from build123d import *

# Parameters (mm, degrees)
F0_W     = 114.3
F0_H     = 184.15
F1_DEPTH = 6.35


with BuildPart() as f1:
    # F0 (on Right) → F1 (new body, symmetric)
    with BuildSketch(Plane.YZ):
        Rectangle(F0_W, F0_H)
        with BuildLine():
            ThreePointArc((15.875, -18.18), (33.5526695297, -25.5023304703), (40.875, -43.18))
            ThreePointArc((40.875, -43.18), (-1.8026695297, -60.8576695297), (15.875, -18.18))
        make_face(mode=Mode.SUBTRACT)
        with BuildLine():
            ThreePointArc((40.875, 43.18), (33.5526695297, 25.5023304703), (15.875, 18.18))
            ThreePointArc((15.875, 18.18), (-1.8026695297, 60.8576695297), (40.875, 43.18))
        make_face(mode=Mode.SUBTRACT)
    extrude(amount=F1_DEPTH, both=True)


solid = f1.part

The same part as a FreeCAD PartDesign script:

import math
import FreeCAD as App
import Part
import Sketcher
Q = App.Units.Quantity


def add_polygon(sketch, points):
    """Adds a closed chain of lines whose ends are joined by coincident constraints."""
    first, n = sketch.GeometryCount, len(points)
    for a, b in zip(points, points[1:] + points[:1]):
        sketch.addGeometry(Part.LineSegment(App.Vector(*a, 0), App.Vector(*b, 0)), False)
    for i in range(n):
        sketch.addConstraint(Sketcher.Constraint("Coincident", first + i, 2, first + (i + 1) % n, 1))

doc = App.newDocument("Part")
body = doc.addObject("PartDesign::Body", "Body")

sketch1 = body.newObject("Sketcher::SketchObject", "Sketch")
sketch1.AttachmentSupport = (doc.getObject("YZ_Plane"), [""])
sketch1.MapMode = "FlatFace"
add_polygon(sketch1, [(-57, 92), (-57, -92), (57, -92), (57, 92)])
sketch1.addGeometry(Part.ArcOfCircle(Part.Circle(App.Vector(16, -43, 0), App.Vector(0, 0, 1), 25), math.radians(90), math.radians(360)), False)
sketch1.addGeometry(Part.ArcOfCircle(Part.Circle(App.Vector(16, -43, 0), App.Vector(0, 0, 1), 25), math.radians(0), math.radians(90)), False)
sketch1.addGeometry(Part.ArcOfCircle(Part.Circle(App.Vector(16, 43, 0), App.Vector(0, 0, 1), 25), math.radians(0), math.radians(270)), False)
sketch1.addGeometry(Part.ArcOfCircle(Part.Circle(App.Vector(16, 43, 0), App.Vector(0, 0, 1), 25), math.radians(-90), math.radians(0)), False)
sketch1.addConstraint([
    Sketcher.Constraint("Tangent", 4, 1, 5, 2),
    Sketcher.Constraint("Coincident", 5, 1, 4, 2),
    Sketcher.Constraint("Tangent", 6, 1, 7, 2),
    Sketcher.Constraint("Coincident", 7, 1, 6, 2),
    Sketcher.Constraint("Vertical", 0),
    Sketcher.Constraint("Horizontal", 1),
    Sketcher.Constraint("Vertical", 2),
    Sketcher.Constraint("Horizontal", 3),
    Sketcher.Constraint("Equal", 5, 6),
    Sketcher.Constraint("Symmetric", 0, 2, 2, 2, -1, 1),
    Sketcher.Constraint("Symmetric", 4, 3, 6, 3, -1),
    Sketcher.Constraint("Horizontal", 4, 3, 5, 1),
    Sketcher.Constraint("Horizontal", 7, 3, 6, 1),
    Sketcher.Constraint("Vertical", 7, 3, 4, 1),
    Sketcher.Constraint("Vertical", 4, 1, 7, 1),
    Sketcher.Constraint("DistanceX", 1, 1, 1, 2, Q("4.5 in")),
    Sketcher.Constraint("DistanceY", 0, 2, 0, 1, Q("7.25 in")),
    Sketcher.Constraint("DistanceY", 4, 3, -1, 1, Q("1.7 in")),
    Sketcher.Constraint("Radius", 4, 25.0),
    Sketcher.Constraint("DistanceX", -1, 1, 4, 3, Q("0.625 in")),
])
pad1 = body.newObject("PartDesign::Pad", "Pad")
pad1.Profile = sketch1
pad1.Length = Q("0.5 in")
pad1.Midplane = True

doc.recompute()
